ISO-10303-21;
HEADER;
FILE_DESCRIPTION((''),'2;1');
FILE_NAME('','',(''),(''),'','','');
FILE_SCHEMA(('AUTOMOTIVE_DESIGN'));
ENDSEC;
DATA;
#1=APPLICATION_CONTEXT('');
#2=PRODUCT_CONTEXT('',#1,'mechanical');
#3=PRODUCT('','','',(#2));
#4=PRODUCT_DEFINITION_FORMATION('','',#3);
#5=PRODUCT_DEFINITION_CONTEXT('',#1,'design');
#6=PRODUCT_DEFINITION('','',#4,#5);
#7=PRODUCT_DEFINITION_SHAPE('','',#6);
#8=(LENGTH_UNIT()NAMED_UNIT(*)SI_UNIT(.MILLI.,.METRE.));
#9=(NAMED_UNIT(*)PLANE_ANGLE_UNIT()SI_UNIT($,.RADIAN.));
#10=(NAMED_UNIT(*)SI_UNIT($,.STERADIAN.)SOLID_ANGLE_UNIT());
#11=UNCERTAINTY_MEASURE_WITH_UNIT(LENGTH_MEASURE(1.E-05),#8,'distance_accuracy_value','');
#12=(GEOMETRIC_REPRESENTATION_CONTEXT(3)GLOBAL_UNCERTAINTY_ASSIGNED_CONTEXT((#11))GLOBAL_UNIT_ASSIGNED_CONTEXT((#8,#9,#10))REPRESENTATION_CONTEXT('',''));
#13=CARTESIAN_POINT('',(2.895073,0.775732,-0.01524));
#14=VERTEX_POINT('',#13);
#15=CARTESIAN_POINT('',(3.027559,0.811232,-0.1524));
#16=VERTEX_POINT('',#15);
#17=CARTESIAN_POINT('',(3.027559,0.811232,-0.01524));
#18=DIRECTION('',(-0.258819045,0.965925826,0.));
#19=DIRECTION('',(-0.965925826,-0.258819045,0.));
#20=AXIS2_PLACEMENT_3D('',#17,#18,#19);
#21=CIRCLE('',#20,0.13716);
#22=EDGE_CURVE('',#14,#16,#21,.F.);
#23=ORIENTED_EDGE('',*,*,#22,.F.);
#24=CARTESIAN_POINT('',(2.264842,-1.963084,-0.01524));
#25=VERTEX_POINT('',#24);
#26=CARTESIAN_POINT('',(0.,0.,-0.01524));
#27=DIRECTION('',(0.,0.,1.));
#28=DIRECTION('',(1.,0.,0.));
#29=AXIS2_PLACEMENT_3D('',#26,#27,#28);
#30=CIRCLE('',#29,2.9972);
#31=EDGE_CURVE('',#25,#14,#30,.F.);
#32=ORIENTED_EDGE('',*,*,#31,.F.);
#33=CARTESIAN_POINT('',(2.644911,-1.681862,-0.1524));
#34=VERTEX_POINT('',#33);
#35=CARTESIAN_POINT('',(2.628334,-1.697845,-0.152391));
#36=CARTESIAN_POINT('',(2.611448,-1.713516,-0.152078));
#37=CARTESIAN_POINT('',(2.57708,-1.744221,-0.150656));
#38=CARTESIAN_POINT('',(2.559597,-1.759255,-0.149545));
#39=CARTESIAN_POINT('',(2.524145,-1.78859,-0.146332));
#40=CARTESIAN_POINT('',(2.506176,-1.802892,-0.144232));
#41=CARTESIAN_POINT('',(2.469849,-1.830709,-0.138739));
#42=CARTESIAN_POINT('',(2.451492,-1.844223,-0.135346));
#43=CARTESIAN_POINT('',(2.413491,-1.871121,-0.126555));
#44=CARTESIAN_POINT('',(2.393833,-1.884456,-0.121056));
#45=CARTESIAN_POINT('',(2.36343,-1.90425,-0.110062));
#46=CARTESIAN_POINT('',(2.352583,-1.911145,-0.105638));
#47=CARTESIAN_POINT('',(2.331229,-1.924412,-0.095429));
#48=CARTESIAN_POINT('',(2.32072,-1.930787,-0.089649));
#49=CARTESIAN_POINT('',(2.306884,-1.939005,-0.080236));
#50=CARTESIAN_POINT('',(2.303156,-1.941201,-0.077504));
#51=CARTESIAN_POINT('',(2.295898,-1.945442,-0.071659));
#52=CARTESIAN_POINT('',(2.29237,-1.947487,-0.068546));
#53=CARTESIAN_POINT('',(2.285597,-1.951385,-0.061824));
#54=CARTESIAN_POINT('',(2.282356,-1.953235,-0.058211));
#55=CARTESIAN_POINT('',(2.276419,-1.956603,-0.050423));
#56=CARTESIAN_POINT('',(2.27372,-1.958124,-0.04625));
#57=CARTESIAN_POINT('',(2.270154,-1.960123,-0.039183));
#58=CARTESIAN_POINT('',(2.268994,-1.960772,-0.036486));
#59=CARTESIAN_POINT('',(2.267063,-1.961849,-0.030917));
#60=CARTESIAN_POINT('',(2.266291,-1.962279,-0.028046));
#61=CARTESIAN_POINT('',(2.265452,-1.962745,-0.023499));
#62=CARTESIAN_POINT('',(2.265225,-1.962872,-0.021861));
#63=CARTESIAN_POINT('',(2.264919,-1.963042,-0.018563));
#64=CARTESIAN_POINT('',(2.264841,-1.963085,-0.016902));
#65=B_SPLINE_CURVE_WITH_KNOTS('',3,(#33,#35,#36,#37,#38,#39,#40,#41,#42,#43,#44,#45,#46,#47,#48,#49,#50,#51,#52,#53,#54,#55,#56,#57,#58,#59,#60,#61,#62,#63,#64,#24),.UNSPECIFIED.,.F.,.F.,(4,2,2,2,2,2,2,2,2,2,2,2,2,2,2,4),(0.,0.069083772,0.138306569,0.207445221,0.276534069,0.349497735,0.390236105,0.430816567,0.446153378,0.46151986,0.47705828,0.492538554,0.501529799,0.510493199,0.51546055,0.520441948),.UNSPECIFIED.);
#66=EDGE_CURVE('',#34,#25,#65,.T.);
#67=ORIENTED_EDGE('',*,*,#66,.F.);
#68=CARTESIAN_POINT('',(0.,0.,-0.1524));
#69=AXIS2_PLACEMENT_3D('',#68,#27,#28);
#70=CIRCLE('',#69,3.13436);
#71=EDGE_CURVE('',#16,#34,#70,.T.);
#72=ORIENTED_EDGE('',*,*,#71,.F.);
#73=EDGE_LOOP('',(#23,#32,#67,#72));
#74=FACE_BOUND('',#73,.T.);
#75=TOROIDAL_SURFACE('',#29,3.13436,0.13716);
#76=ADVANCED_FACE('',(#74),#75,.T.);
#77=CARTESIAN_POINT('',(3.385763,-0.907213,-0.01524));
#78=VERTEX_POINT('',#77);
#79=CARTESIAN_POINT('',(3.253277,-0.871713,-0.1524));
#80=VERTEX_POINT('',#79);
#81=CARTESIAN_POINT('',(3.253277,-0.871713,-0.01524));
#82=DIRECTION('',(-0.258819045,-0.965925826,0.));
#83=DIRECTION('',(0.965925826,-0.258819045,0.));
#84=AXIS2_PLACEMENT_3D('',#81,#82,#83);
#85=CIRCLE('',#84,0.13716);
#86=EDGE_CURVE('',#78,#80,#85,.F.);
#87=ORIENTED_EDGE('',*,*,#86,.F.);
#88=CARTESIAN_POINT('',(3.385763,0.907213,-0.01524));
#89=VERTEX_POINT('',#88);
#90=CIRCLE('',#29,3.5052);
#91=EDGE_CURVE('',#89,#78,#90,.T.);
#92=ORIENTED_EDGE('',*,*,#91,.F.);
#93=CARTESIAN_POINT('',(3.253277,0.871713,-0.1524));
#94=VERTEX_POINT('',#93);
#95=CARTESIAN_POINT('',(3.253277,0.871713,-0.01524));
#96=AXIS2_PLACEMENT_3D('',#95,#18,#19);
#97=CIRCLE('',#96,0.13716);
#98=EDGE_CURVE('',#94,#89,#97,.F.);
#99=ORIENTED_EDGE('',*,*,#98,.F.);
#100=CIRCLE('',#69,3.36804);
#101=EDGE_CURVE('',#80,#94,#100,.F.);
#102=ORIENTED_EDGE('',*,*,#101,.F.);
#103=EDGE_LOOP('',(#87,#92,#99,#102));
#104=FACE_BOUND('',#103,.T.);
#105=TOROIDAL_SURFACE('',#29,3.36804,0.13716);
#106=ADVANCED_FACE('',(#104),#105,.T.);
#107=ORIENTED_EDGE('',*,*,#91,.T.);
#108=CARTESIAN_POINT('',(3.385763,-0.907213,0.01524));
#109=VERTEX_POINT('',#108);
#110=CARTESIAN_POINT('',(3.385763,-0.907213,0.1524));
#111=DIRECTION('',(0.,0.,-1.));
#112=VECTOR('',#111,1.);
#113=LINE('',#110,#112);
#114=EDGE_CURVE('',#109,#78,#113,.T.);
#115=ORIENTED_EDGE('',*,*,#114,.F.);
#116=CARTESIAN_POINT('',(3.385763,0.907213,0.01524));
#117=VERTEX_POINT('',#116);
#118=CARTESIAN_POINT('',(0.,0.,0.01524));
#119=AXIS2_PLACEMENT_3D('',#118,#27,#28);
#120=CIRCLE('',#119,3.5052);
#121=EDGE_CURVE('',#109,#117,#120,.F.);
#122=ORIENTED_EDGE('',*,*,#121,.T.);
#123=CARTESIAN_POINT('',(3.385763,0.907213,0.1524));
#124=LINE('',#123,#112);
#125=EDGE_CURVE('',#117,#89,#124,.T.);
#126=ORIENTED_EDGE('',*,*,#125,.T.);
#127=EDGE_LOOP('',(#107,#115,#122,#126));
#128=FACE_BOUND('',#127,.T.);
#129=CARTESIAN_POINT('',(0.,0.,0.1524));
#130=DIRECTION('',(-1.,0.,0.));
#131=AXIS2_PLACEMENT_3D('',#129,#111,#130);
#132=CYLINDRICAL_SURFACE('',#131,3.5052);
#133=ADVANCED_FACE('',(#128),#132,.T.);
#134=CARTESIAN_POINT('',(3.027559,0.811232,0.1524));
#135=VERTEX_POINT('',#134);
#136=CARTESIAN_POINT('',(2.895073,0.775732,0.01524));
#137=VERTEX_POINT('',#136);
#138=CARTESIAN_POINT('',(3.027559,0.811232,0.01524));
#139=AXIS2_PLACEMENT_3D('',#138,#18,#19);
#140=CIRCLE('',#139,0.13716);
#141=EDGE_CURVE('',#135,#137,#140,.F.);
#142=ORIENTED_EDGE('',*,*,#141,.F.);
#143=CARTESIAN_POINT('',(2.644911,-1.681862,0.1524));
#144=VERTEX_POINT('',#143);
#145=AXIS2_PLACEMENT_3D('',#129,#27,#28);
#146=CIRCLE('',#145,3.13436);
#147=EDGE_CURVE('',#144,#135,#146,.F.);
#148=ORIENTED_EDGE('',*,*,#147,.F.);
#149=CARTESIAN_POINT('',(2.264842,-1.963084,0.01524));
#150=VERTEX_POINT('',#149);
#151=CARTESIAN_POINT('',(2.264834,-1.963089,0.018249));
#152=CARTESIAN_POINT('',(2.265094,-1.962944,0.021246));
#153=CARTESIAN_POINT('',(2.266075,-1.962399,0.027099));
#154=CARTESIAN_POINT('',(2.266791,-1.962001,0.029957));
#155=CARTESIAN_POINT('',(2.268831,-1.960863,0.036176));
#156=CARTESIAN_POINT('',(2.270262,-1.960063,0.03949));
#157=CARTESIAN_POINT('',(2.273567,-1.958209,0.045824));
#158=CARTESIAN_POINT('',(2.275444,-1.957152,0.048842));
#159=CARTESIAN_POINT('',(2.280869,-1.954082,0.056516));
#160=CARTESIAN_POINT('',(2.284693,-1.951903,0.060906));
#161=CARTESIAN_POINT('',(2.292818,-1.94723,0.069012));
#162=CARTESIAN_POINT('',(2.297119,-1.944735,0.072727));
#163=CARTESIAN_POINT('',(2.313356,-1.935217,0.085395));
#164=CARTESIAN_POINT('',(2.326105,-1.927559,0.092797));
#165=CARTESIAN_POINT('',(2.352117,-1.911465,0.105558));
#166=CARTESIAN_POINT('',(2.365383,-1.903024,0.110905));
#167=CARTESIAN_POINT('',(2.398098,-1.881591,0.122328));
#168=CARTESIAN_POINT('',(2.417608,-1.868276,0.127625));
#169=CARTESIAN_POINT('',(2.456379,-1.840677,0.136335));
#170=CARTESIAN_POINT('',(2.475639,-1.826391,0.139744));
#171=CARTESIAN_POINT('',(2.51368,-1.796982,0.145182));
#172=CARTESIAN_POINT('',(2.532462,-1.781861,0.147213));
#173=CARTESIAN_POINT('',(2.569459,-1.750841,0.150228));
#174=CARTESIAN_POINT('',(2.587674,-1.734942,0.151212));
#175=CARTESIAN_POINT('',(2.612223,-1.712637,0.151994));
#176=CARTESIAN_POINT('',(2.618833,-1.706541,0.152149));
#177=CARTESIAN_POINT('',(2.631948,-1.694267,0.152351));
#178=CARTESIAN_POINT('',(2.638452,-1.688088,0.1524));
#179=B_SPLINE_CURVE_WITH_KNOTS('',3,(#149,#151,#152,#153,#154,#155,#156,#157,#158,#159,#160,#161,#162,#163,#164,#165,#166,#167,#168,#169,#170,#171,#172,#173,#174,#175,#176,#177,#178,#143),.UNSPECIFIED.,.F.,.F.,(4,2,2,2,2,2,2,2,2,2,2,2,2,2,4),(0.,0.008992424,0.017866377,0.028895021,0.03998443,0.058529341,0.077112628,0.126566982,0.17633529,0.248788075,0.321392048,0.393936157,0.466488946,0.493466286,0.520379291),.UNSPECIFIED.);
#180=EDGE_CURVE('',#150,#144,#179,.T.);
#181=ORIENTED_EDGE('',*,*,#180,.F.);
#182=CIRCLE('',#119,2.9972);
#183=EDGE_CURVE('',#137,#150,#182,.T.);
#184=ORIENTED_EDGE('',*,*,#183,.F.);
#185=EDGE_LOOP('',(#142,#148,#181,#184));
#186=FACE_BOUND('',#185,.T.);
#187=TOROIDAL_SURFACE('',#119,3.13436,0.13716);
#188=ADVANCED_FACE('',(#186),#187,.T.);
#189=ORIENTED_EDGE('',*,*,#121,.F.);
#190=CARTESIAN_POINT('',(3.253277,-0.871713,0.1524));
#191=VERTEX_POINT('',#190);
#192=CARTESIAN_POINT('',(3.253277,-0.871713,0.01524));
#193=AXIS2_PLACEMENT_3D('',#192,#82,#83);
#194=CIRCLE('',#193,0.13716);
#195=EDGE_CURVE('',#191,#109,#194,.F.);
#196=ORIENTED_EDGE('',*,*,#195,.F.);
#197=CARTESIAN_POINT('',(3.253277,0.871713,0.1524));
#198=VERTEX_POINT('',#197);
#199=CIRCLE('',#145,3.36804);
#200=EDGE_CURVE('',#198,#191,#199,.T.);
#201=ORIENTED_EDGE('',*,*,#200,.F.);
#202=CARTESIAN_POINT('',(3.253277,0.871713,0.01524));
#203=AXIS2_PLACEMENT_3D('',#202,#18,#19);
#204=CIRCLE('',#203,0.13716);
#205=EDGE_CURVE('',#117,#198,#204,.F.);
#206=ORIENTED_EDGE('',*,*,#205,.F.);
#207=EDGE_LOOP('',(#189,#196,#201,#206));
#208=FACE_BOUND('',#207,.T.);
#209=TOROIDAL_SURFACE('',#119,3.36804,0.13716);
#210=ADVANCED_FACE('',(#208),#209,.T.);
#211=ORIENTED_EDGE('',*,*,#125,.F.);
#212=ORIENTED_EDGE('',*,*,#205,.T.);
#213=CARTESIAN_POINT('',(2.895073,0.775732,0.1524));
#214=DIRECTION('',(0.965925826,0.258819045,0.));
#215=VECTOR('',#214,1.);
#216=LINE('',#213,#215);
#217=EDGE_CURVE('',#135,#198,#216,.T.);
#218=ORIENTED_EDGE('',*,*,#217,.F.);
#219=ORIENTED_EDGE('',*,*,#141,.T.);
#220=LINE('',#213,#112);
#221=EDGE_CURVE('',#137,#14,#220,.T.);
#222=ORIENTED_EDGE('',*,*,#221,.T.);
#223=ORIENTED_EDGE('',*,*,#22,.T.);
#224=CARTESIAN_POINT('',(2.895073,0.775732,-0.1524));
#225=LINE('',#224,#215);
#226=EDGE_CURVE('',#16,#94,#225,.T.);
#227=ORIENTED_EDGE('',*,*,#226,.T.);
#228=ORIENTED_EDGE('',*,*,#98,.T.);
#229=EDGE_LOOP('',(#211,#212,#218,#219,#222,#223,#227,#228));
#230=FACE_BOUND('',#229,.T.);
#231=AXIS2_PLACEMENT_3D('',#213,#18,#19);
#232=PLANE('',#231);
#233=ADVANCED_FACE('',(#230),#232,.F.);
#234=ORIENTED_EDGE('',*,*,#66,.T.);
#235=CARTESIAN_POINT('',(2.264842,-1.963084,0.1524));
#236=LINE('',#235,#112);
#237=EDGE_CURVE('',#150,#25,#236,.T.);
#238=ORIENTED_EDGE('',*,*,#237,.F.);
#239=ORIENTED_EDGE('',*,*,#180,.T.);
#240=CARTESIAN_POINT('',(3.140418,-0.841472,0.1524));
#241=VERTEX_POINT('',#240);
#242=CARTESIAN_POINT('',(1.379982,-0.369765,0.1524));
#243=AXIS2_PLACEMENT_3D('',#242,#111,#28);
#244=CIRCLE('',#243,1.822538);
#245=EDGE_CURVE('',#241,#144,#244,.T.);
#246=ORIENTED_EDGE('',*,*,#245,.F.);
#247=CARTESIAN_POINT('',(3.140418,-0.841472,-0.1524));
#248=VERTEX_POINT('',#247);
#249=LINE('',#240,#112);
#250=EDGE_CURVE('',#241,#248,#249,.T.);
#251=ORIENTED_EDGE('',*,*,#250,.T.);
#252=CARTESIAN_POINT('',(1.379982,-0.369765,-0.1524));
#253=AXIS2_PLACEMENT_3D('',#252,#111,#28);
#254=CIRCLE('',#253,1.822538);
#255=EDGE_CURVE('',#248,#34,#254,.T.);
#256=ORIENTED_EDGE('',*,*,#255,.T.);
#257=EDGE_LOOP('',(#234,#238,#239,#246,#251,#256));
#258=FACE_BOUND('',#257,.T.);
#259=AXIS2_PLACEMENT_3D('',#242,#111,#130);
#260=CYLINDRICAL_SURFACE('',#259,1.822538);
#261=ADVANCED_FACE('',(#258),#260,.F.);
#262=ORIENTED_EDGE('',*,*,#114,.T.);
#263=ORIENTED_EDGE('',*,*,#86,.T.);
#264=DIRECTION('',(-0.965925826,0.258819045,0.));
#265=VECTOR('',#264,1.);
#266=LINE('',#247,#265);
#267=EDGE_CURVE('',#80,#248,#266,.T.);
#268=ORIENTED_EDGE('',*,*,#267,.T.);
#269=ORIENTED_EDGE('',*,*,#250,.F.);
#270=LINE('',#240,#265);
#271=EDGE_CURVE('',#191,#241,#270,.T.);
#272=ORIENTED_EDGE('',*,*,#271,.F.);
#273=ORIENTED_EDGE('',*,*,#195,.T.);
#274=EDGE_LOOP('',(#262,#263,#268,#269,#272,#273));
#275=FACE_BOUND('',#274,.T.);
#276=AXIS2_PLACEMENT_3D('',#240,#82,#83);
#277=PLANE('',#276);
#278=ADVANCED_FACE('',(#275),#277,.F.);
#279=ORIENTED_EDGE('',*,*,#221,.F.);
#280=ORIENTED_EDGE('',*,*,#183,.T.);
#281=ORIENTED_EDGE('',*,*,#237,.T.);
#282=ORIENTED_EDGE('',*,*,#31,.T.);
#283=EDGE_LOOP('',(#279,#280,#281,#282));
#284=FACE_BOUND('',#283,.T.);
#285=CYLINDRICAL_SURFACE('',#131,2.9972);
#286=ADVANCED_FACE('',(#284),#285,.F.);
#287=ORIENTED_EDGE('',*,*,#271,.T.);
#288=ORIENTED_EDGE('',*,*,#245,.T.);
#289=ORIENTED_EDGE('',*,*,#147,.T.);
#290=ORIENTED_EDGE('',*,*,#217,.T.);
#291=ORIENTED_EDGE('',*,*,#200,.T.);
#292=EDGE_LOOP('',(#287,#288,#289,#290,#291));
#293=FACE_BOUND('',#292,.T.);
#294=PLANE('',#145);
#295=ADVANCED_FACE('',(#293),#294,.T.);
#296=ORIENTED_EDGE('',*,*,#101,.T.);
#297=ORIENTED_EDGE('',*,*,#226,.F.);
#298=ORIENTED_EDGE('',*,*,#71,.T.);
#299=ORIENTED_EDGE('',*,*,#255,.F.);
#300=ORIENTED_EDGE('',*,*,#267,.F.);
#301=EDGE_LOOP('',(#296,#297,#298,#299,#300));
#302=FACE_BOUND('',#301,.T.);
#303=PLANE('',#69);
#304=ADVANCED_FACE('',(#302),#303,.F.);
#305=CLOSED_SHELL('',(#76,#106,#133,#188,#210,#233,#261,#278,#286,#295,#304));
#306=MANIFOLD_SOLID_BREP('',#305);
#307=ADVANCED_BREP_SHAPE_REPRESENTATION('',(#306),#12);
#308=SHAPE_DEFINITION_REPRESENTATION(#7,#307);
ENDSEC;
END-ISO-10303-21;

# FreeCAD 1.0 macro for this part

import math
import FreeCAD as App
import Part
import Sketcher
from FreeCAD import Vector
Q = App.Units.Quantity


def edges_at(feature, points):
    """Names of the edges that pass closest to the given points."""
    edges = feature.Shape.Edges
    near = lambda p: min(range(len(edges)), key=lambda i: edges[i].distToShape(Part.Vertex(*p))[0])
    return sorted({f"Edge{near(p) + 1}" for p in points})

doc = App.newDocument("Part")
body = doc.addObject("PartDesign::Body", "Body")

# Sketch on XY plane
sketch1 = body.newObject("Sketcher::SketchObject", "Sketch")
sketch1.AttachmentSupport = (doc.getObject("XY_Plane"), [""])
sketch1.MapMode = "FlatFace"
sketch1.addGeometry([
    Part.LineSegment(Vector(3.385763, -0.907213, 0), Vector(3.140418, -0.841472, 0)),  # 0
    Part.ArcOfCircle(Part.Circle(Vector(1.379982, -0.369765, 0), Vector(0, 0, 1), 1.822538), math.radians(-60.954128), math.radians(-15)),  # 1
    Part.ArcOfCircle(Part.Circle(Vector(0, 0, 0), Vector(0, 0, 1), 2.9972), math.radians(15), math.radians(319.082415)),  # 2
    Part.LineSegment(Vector(2.895073, 0.775732, 0), Vector(3.385763, 0.907213, 0)),  # 3
    Part.ArcOfCircle(Part.Circle(Vector(0, 0, 0), Vector(0, 0, 1), 3.5052), math.radians(15), math.radians(345)),  # 4
], False)
sketch1.addConstraint([
    Sketcher.Constraint("Coincident", 0, 2, 1, 2),
    Sketcher.Constraint("Coincident", 1, 1, 2, 2),
    Sketcher.Constraint("Coincident", 2, 1, 3, 1),
    Sketcher.Constraint("Coincident", 3, 2, 4, 1),
    Sketcher.Constraint("Coincident", 4, 2, 0, 1),
    Sketcher.Constraint("Coincident", 2, 3, -1, 1),
    Sketcher.Constraint("Coincident", 4, 3, -1, 1),
    Sketcher.Constraint("Vertical", 3, 2, 4, 2),
    Sketcher.Constraint("Angle", 0, Q("165 deg")),
    Sketcher.Constraint("Angle", 3, Q("15 deg")),
    Sketcher.Constraint("Radius", 2, Q("0.118 in")),
    Sketcher.Constraint("Radius", 4, Q("0.138 in")),
    Sketcher.Constraint("Distance", 0, Q("0.01 in")),
    Sketcher.Constraint("Radius", 1, 1.822538),
    Sketcher.Constraint("DistanceX", -1, 1, 1, 3, 1.379982),
    Sketcher.Constraint("DistanceX", -1, 1, 0, 2, 3.140418),
])
pad1 = body.newObject("PartDesign::Pad", "Pad")
pad1.Profile = sketch1
pad1.Length = Q("0.012 in")
pad1.Midplane = True
doc.recompute()

fillet = body.newObject("PartDesign::Fillet", "Fillet")
fillet.Base = (pad1, edges_at(pad1, [
    (-3.505, 0, 0.152),
    (-2.921, 0.672, 0.152),
    (-3.505, 0, -0.152),
    (-2.921, 0.672, -0.152),
]))
fillet.Radius = Q("0.0054 in")

doc.recompute()
